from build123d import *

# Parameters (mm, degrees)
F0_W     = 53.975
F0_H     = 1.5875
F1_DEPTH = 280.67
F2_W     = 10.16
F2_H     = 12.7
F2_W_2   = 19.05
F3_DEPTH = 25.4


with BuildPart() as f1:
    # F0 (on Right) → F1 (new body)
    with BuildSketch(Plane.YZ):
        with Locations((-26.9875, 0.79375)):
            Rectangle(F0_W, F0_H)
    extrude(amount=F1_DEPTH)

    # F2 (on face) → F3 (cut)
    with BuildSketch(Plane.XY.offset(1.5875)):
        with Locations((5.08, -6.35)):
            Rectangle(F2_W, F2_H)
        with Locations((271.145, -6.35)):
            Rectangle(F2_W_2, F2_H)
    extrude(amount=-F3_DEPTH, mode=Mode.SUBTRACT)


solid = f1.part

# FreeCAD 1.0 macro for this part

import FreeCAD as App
import Part
import Sketcher
from FreeCAD import Vector
Q = App.Units.Quantity

doc = App.newDocument("Part")
body = doc.addObject("PartDesign::Body", "Body")

sketch1 = doc.addObject("Sketcher::SketchObject", "Sketch")
body.addObject(sketch1)
sketch1.AttachmentSupport = (doc.YZ_Plane, [""])
sketch1.MapMode = "FlatFace"
sketch1.addGeometry(Part.LineSegment(Vector(-53.975, 1.5875, 0), Vector(-53.975, 0, 0)), False)
sketch1.addGeometry(Part.LineSegment(Vector(-53.975, 0, 0), Vector(0, 0, 0)), False)
sketch1.addGeometry(Part.LineSegment(Vector(0, 0, 0), Vector(0, 1.5875, 0)), False)
sketch1.addGeometry(Part.LineSegment(Vector(0, 1.5875, 0), Vector(-53.975, 1.5875, 0)), False)
sketch1.addConstraint(Sketcher.Constraint("Coincident", 0, 2, 1, 1))
sketch1.addConstraint(Sketcher.Constraint("Coincident", 1, 2, 2, 1))
sketch1.addConstraint(Sketcher.Constraint("Coincident", 2, 2, 3, 1))
sketch1.addConstraint(Sketcher.Constraint("Coincident", 3, 2, 0, 1))
sketch1.addConstraint(Sketcher.Constraint("Vertical", 0))
sketch1.addConstraint(Sketcher.Constraint("Horizontal", 1))
sketch1.addConstraint(Sketcher.Constraint("Vertical", 2))
sketch1.addConstraint(Sketcher.Constraint("Horizontal", 3))
sketch1.addConstraint(Sketcher.Constraint("Coincident", 1, 2, -1, 1))
sketch1.addConstraint(Sketcher.Constraint("DistanceX", 1, 1, 1, 2, Q("2.125 in")))
sketch1.addConstraint(Sketcher.Constraint("DistanceY", 0, 2, 0, 1, Q("0.0625 in")))
pad1 = doc.addObject("PartDesign::Pad", "Pad")
body.addObject(pad1)
pad1.Profile = sketch1
pad1.Length = Q("11.05 in")

sketch2 = doc.addObject("Sketcher::SketchObject", "Sketch001")
body.addObject(sketch2)
sketch2.AttachmentSupport = (doc.XY_Plane, [""])
sketch2.MapMode = "FlatFace"
sketch2.AttachmentOffset = App.Placement(Vector(0, 0, 0.0625 * 25.4), App.Rotation())
sketch2.addGeometry(Part.LineSegment(Vector(0, 0, 0), Vector(0, -12.7, 0)), False)
sketch2.addGeometry(Part.LineSegment(Vector(0, -12.7, 0), Vector(10.16, -12.7, 0)), False)
sketch2.addGeometry(Part.LineSegment(Vector(10.16, -12.7, 0), Vector(10.16, 0, 0)), False)
sketch2.addGeometry(Part.LineSegment(Vector(10.16, 0, 0), Vector(0, 0, 0)), False)
sketch2.addGeometry(Part.LineSegment(Vector(261.62, 0, 0), Vector(261.62, -12.7, 0)), False)
sketch2.addGeometry(Part.LineSegment(Vector(261.62, -12.7, 0), Vector(280.67, -12.7, 0)), False)
sketch2.addGeometry(Part.LineSegment(Vector(280.67, -12.7, 0), Vector(280.67, 0, 0)), False)
sketch2.addGeometry(Part.LineSegment(Vector(280.67, 0, 0), Vector(261.62, 0, 0)), False)
sketch2.addConstraint(Sketcher.Constraint("Coincident", 0, 2, 1, 1))
sketch2.addConstraint(Sketcher.Constraint("Coincident", 1, 2, 2, 1))
sketch2.addConstraint(Sketcher.Constraint("Coincident", 2, 2, 3, 1))
sketch2.addConstraint(Sketcher.Constraint("Coincident", 3, 2, 0, 1))
sketch2.addConstraint(Sketcher.Constraint("Coincident", 4, 2, 5, 1))
sketch2.addConstraint(Sketcher.Constraint("Coincident", 5, 2, 6, 1))
sketch2.addConstraint(Sketcher.Constraint("Coincident", 6, 2, 7, 1))
sketch2.addConstraint(Sketcher.Constraint("Coincident", 7, 2, 4, 1))
sketch2.addConstraint(Sketcher.Constraint("Vertical", 0))
sketch2.addConstraint(Sketcher.Constraint("Horizontal", 1))
sketch2.addConstraint(Sketcher.Constraint("Vertical", 2))
sketch2.addConstraint(Sketcher.Constraint("Horizontal", 3))
sketch2.addConstraint(Sketcher.Constraint("Vertical", 4))
sketch2.addConstraint(Sketcher.Constraint("Horizontal", 5))
sketch2.addConstraint(Sketcher.Constraint("Vertical", 6))
sketch2.addConstraint(Sketcher.Constraint("Horizontal", 7))
sketch2.addConstraint(Sketcher.Constraint("Coincident", 3, 2, -1, 1))
sketch2.addConstraint(Sketcher.Constraint("PointOnObject", 6, 2, -1))
sketch2.addConstraint(Sketcher.Constraint("Horizontal", 1, 2, 4, 2))
sketch2.addConstraint(Sketcher.Constraint("DistanceX", 1, 1, 1, 2, Q("0.4 in")))
sketch2.addConstraint(Sketcher.Constraint("DistanceY", 0, 2, 0, 1, Q("0.5 in")))
sketch2.addConstraint(Sketcher.Constraint("DistanceX", 5, 1, 5, 2, Q("0.75 in")))
sketch2.addConstraint(Sketcher.Constraint("DistanceX", -1, 1, 4, 2, Q("10.3 in")))
pocket1 = doc.addObject("PartDesign::Pocket", "Pocket")
body.addObject(pocket1)
pocket1.Profile = sketch2
pocket1.Length = Q("1 in")

doc.recompute()
